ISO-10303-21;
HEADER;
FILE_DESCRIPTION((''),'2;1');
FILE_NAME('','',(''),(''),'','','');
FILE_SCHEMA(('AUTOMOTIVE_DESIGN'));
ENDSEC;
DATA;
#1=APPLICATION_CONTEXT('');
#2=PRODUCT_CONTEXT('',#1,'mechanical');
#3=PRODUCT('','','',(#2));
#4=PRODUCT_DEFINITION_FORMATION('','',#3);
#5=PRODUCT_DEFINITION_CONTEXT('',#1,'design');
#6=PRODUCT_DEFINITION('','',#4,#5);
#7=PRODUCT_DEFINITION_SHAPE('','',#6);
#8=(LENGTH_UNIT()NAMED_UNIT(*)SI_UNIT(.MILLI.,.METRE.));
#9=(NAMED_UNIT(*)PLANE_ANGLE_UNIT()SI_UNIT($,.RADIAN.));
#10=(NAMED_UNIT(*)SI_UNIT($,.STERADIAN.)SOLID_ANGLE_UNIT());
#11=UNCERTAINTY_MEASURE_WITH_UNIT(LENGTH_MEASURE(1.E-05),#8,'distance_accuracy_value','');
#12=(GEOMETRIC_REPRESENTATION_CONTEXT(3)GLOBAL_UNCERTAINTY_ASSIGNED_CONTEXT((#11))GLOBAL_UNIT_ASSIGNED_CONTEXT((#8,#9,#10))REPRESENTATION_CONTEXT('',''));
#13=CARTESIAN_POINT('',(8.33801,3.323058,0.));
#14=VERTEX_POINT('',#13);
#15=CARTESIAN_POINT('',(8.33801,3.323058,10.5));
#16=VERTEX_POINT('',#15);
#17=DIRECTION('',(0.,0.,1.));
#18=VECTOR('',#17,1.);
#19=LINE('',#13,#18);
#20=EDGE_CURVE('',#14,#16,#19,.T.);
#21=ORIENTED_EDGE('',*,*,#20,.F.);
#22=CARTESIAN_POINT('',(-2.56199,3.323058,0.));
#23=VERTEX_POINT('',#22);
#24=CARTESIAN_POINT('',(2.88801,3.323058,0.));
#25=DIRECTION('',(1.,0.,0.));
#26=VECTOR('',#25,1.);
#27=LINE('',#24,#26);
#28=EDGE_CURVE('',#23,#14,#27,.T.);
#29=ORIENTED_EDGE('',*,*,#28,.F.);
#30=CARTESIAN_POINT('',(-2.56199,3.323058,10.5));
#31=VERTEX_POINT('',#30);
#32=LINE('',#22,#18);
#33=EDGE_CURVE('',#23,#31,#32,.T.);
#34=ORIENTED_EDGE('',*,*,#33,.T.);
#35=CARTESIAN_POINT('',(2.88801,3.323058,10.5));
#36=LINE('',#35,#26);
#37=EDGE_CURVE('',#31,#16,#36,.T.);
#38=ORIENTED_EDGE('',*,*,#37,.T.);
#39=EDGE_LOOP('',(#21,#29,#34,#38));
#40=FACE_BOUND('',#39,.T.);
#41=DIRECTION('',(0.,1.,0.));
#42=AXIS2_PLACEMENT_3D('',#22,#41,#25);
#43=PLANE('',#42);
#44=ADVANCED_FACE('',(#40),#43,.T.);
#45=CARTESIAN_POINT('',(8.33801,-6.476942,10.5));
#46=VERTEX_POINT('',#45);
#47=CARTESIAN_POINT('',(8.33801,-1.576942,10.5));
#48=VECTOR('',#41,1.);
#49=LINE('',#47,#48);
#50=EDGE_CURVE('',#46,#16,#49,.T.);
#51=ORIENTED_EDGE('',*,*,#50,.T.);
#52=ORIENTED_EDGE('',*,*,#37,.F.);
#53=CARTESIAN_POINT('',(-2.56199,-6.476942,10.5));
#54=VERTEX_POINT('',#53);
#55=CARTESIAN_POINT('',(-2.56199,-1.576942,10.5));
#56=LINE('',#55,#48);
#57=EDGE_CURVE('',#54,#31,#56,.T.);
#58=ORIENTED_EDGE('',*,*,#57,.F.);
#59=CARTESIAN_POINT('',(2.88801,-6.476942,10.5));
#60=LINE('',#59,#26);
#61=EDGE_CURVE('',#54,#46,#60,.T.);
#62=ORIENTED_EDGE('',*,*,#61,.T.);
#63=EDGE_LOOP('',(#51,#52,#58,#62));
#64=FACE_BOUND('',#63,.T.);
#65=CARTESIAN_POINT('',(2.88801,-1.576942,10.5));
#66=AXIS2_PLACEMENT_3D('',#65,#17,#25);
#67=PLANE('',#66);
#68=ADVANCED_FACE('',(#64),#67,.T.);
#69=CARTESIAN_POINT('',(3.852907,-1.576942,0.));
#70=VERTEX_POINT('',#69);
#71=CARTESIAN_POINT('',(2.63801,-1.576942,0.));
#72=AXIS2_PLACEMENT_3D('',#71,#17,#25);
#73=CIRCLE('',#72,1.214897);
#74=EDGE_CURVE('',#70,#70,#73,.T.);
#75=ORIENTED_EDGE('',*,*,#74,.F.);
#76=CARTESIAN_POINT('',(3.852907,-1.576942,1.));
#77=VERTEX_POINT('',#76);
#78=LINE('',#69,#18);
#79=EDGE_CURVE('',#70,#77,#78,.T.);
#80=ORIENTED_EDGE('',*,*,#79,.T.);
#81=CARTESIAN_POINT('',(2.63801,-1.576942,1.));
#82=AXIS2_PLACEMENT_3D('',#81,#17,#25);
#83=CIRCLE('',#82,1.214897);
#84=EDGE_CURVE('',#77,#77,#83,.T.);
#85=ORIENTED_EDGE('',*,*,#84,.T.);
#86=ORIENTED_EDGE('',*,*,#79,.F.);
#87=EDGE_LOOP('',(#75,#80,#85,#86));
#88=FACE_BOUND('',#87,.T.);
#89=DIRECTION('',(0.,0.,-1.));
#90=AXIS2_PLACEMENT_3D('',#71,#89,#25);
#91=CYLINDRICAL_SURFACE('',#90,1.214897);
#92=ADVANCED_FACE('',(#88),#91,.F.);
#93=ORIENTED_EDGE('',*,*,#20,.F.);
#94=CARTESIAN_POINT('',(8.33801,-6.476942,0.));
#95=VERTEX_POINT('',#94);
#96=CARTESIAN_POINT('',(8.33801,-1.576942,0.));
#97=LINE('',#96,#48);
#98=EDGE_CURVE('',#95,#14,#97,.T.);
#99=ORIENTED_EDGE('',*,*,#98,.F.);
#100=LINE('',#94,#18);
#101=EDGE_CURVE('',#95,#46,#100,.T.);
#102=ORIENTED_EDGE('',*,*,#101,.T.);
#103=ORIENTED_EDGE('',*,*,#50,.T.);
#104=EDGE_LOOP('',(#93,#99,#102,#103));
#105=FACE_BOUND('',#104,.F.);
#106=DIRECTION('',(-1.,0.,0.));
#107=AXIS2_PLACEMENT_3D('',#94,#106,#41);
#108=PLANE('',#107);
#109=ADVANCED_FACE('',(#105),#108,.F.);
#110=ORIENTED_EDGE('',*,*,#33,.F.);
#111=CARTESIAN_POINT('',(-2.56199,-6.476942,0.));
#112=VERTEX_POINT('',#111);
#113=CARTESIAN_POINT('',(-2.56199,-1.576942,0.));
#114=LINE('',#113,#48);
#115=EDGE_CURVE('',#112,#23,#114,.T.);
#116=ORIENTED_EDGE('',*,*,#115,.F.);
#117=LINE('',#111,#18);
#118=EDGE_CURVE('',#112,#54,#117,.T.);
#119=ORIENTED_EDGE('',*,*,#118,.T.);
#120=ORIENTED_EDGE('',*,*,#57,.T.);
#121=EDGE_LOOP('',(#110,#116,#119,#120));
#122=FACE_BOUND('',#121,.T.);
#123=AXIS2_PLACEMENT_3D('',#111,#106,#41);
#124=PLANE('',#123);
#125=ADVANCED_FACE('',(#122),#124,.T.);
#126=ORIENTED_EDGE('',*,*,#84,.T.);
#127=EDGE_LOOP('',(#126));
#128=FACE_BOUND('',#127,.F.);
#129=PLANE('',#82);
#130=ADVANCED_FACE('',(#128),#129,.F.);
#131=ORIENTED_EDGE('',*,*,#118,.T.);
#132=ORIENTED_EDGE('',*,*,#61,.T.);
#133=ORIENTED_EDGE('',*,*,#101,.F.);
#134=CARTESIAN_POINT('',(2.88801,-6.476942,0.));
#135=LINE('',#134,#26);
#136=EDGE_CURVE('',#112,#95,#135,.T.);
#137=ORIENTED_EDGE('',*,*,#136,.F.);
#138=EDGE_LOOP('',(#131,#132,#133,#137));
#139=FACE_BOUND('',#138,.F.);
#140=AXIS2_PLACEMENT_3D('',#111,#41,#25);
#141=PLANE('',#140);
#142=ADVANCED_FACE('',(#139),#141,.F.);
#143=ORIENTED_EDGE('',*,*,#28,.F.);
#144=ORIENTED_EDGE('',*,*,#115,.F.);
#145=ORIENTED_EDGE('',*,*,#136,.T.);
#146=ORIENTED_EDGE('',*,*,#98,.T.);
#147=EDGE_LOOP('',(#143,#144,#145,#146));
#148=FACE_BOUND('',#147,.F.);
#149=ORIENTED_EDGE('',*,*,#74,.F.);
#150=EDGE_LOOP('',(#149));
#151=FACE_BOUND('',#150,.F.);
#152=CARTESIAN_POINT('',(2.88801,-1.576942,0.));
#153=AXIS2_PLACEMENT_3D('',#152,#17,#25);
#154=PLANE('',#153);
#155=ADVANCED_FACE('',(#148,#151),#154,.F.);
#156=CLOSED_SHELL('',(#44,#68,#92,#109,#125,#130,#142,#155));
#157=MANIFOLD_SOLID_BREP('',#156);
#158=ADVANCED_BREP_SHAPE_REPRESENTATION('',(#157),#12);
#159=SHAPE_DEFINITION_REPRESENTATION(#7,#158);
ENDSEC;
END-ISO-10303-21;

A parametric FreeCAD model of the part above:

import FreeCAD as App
import Part
import Sketcher
from FreeCAD import Vector
Q = App.Units.Quantity

doc = App.newDocument("Part")
body = doc.addObject("PartDesign::Body", "Body")

# Sketch on XY plane
sketch1 = body.newObject("Sketcher::SketchObject", "Sketch")
sketch1.AttachmentSupport = (doc.getObject("XY_Plane"), [""])
sketch1.MapMode = "FlatFace"
sketch1.addGeometry([
    Part.LineSegment(Vector(-3, 3, 0), Vector(-3, -6, 0)),
    Part.LineSegment(Vector(-3, -6, 0), Vector(8, -6, 0)),
    Part.LineSegment(Vector(8, -6, 0), Vector(8, 3, 0)),
    Part.LineSegment(Vector(8, 3, 0), Vector(-3, 3, 0)),
], False)
sketch1.addConstraint([
    Sketcher.Constraint("Coincident", 0, 2, 1, 1),
    Sketcher.Constraint("Coincident", 1, 2, 2, 1),
    Sketcher.Constraint("Coincident", 2, 2, 3, 1),
    Sketcher.Constraint("Coincident", 3, 2, 0, 1),
    Sketcher.Constraint("Vertical", 0),
    Sketcher.Constraint("Horizontal", 1),
    Sketcher.Constraint("Vertical", 2),
    Sketcher.Constraint("Horizontal", 3),
    Sketcher.Constraint("DistanceX", 1, 1, 1, 2, Q("10.9 mm")),
    Sketcher.Constraint("DistanceY", 0, 2, 0, 1, Q("9.8 mm")),
    Sketcher.Constraint("DistanceX", 0, 2, -1, 1, Q("2.56199 mm")),
    Sketcher.Constraint("DistanceY", -1, 1, 2, 2, Q("3.323058 mm")),
])
pad1 = body.newObject("PartDesign::Pad", "Pad")
pad1.Profile = sketch1
pad1.Length = 10.5

# Sketch on XY plane
sketch2 = body.newObject("Sketcher::SketchObject", "Sketch001")
sketch2.AttachmentSupport = (doc.getObject("XY_Plane"), [""])
sketch2.MapMode = "FlatFace"
sketch2.addGeometry(Part.Circle(Vector(2.6, -1.6, 0), Vector(0, 0, 1), 1.2), False)
sketch2.addConstraint([
    Sketcher.Constraint("Diameter", 0, Q("2.429794 mm")),
    Sketcher.Constraint("DistanceX", -1, 1, 0, 3, Q("2.63801 mm")),
    Sketcher.Constraint("DistanceY", 0, 3, -1, 1, Q("1.576942 mm")),
])
pocket1 = body.newObject("PartDesign::Pocket", "Pocket")
pocket1.Profile = sketch2
pocket1.Length = 1
pocket1.Reversed = True

doc.recompute()
